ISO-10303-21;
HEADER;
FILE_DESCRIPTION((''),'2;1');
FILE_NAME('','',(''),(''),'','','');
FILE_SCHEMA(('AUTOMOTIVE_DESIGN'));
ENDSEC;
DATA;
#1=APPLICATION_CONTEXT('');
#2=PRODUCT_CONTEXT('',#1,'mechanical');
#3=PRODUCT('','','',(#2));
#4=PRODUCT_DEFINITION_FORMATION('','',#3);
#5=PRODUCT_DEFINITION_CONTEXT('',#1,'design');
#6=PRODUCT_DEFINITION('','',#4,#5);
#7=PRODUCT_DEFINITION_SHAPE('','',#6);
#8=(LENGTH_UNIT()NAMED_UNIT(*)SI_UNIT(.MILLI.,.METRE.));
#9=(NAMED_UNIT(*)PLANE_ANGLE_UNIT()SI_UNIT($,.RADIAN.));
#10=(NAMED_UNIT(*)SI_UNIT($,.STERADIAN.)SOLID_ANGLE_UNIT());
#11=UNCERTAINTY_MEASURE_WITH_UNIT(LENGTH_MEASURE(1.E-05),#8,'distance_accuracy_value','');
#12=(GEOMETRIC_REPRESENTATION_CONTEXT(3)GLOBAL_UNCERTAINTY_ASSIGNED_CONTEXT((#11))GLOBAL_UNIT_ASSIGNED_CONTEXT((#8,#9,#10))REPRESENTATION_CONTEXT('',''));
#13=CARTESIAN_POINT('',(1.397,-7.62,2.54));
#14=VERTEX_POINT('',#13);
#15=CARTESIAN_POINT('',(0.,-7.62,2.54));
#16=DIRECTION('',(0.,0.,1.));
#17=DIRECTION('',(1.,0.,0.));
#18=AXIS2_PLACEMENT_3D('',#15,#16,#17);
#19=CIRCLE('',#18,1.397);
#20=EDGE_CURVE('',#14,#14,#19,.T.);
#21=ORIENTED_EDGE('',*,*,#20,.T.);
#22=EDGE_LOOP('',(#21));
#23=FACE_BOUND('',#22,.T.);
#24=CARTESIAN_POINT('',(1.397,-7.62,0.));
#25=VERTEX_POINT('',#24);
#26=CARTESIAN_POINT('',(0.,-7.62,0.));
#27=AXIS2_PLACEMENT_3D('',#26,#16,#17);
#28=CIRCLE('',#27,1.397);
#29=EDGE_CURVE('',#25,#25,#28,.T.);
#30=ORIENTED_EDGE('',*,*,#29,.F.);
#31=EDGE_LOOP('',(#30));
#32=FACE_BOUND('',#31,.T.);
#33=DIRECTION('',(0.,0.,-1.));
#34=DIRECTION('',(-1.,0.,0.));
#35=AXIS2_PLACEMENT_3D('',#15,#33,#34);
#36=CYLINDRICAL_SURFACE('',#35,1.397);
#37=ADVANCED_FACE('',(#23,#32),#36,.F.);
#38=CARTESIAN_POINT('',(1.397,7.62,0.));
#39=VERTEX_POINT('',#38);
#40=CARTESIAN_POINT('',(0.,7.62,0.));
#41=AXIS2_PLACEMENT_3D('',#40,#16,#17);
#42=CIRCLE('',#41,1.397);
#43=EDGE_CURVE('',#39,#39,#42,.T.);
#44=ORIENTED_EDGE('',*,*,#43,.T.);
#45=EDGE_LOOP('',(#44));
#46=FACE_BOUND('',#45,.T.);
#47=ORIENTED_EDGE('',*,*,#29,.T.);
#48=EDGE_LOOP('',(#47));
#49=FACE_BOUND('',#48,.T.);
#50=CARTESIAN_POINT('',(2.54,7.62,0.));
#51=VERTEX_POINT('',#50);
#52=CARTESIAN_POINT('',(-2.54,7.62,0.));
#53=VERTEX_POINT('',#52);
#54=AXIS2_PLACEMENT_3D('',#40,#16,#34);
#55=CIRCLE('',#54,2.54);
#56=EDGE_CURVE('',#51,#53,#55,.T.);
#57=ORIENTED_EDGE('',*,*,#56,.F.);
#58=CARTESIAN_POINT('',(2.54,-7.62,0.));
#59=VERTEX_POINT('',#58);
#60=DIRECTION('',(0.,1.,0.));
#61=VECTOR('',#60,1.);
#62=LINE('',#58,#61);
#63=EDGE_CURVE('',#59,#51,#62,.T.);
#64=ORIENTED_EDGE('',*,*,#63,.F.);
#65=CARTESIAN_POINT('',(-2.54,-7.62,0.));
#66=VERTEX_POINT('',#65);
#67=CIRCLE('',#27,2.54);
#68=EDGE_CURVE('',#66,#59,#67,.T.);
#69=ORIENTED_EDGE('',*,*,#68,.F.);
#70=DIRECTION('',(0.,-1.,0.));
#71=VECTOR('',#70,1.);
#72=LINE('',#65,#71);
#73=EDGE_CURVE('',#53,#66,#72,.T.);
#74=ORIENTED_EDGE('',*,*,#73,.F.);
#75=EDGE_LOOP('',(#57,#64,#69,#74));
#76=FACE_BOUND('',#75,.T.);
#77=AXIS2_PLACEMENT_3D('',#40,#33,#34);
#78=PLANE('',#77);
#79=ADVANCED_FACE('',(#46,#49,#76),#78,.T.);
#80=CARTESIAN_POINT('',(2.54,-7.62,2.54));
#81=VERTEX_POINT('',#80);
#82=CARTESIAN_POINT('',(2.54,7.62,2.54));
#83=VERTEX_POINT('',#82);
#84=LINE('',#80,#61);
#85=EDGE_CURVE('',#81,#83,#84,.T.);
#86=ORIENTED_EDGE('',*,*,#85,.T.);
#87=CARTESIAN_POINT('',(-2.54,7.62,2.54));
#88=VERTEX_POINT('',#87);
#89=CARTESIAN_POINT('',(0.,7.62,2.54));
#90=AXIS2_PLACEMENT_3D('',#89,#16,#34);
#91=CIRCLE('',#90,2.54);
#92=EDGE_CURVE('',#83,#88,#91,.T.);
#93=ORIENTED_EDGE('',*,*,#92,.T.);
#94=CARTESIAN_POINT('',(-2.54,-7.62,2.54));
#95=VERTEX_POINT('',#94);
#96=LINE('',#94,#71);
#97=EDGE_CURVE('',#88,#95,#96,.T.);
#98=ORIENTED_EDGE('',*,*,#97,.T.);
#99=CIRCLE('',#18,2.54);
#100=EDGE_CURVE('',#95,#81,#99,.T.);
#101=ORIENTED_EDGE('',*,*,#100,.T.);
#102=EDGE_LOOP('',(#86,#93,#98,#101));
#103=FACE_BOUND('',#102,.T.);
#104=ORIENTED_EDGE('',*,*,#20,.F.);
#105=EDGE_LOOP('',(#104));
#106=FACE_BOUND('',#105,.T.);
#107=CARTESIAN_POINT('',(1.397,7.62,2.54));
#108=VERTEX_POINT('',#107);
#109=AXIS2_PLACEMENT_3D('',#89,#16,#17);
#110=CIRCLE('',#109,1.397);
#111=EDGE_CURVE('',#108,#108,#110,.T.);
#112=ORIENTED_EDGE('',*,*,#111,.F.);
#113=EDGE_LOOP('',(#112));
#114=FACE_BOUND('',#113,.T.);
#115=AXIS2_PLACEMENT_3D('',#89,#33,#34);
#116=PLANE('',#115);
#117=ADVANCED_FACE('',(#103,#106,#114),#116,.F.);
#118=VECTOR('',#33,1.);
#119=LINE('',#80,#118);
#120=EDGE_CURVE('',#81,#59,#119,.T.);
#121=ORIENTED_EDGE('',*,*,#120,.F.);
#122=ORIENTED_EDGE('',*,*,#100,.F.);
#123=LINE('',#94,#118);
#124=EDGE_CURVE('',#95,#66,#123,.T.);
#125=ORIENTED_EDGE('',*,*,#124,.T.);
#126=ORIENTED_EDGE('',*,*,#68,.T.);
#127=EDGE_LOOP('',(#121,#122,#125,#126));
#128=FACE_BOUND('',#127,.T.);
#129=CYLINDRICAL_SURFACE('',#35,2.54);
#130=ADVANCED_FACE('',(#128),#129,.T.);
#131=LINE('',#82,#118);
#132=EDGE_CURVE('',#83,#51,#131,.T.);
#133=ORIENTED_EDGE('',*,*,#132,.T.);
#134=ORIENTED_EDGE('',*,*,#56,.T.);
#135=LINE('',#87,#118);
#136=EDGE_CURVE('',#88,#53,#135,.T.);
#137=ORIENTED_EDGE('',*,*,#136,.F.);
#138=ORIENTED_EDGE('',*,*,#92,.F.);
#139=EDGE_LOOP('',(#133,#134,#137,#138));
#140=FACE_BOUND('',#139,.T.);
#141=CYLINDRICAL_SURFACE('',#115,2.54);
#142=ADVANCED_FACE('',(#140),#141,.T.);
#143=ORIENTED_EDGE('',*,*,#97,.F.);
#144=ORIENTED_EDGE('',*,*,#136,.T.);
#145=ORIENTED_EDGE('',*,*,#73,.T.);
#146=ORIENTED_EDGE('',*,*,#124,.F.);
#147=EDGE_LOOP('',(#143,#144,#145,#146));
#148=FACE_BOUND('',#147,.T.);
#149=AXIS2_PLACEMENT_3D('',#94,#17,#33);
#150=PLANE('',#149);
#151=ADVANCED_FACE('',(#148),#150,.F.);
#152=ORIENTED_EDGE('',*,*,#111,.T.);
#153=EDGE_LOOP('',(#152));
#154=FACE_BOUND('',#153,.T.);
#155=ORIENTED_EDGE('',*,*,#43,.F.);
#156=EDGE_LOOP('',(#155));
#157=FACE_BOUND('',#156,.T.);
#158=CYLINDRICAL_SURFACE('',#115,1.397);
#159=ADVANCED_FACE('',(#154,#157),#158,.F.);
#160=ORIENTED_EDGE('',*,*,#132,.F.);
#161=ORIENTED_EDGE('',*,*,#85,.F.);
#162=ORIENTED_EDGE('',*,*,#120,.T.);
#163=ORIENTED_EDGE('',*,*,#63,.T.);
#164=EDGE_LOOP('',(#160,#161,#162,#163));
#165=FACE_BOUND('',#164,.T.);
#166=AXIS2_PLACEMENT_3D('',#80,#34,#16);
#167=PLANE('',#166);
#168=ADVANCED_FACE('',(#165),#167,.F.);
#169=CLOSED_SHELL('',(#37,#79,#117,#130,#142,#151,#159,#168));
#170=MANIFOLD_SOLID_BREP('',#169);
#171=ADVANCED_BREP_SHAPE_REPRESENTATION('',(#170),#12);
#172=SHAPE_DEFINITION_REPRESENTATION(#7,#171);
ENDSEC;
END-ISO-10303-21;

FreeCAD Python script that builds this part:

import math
import FreeCAD as App
import Part
import Sketcher
Q = App.Units.Quantity

doc = App.newDocument("Part")
body = doc.addObject("PartDesign::Body", "Body")

# Sketch on XY plane
sketch1 = body.newObject("Sketcher::SketchObject", "Sketch")
sketch1.AttachmentSupport = (doc.getObject("XY_Plane"), [""])
sketch1.MapMode = "FlatFace"
sketch1.addGeometry([
    Part.LineSegment(App.Vector(2.5, -7.6, 0), App.Vector(2.5, 7.6, 0)),  # 0
    Part.ArcOfCircle(Part.Circle(App.Vector(0, 7.6, 0), App.Vector(0, 0, 1), 2.5), math.radians(0), math.radians(180)),  # 1
    Part.LineSegment(App.Vector(-2.5, 7.6, 0), App.Vector(-2.5, -7.6, 0)),  # 2
    Part.ArcOfCircle(Part.Circle(App.Vector(0, -7.6, 0), App.Vector(0, 0, 1), 2.5), math.radians(180), math.radians(360)),  # 3
    Part.Circle(App.Vector(0, -7.6, 0), App.Vector(0, 0, 1), 1.4),  # 4
    Part.Circle(App.Vector(0, 7.6, 0), App.Vector(0, 0, 1), 1.4),  # 5
], False)
sketch1.addConstraint([
    Sketcher.Constraint("Tangent", 0, 2, 1, 1),
    Sketcher.Constraint("Tangent", 1, 2, 2, 1),
    Sketcher.Constraint("Tangent", 2, 2, 3, 1),
    Sketcher.Constraint("Tangent", 3, 2, 0, 1),
    Sketcher.Constraint("Vertical", 0),
    Sketcher.Constraint("Vertical", 2),
    Sketcher.Constraint("Coincident", 4, 3, 3, 3),
    Sketcher.Constraint("Coincident", 5, 3, 1, 3),
    Sketcher.Constraint("Equal", 4, 5),
    Sketcher.Constraint("Symmetric", 1, 3, 3, 3, -1, 1),
    Sketcher.Constraint("Radius", 1, Q("0.1 in")),
    Sketcher.Constraint("Diameter", 4, Q("0.11 in")),
    Sketcher.Constraint("DistanceY", 0, 1, 0, 2, Q("0.6 in")),
])
pad1 = body.newObject("PartDesign::Pad", "Pad")
pad1.Profile = sketch1
pad1.Length = Q("0.1 in")

doc.recompute()
